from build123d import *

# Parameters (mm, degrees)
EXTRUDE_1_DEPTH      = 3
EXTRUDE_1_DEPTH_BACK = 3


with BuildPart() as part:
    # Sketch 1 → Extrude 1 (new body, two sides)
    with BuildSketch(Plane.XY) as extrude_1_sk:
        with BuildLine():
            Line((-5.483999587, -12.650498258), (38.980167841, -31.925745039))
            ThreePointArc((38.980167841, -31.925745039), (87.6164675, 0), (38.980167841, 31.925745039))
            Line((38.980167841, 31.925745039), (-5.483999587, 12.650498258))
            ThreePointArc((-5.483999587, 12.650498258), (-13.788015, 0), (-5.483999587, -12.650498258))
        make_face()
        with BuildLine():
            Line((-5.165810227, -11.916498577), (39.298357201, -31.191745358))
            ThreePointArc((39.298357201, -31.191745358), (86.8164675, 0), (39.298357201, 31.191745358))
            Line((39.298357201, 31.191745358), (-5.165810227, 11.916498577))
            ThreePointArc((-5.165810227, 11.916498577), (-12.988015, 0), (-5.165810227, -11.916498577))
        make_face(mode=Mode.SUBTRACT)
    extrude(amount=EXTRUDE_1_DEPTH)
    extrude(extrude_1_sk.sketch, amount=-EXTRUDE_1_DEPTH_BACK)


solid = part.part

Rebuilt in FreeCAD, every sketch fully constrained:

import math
import FreeCAD as App
import Part
import Sketcher

V = App.Vector
Q = App.Units.Quantity

doc = App.newDocument("Part")
body = doc.addObject("PartDesign::Body", "Body")

# Sketch on XY plane
sketch1 = body.newObject("Sketcher::SketchObject", "Sketch")
sketch1.AttachmentSupport = (doc.getObject("XY_Plane"), [""])
sketch1.MapMode = "FlatFace"
sketch1.addGeometry([
    Part.LineSegment(V(-5, -13, 0), V(39, -32, 0)),  # 0
    Part.ArcOfCircle(Part.Circle(V(53, 0, 0), V(0, 0, 1), 35), math.radians(-113), math.radians(113)),  # 1
    Part.LineSegment(V(39, 32, 0), V(-5, 13, 0)),  # 2
    Part.ArcOfCircle(Part.Circle(V(0, 0, 0), V(0, 0, 1), 14), math.radians(113), math.radians(247)),  # 3
    Part.LineSegment(V(39, -31, 0), V(-5, -12, 0)),  # 4
    Part.ArcOfCircle(Part.Circle(V(0, 0, 0), V(0, 0, 1), 13), math.radians(113), math.radians(247)),  # 5
    Part.LineSegment(V(-5, 12, 0), V(39, 31, 0)),  # 6
    Part.ArcOfCircle(Part.Circle(V(53, 0, 0), V(0, 0, 1), 34), math.radians(-113), math.radians(113)),  # 7
], False)
sketch1.addConstraint([
    Sketcher.Constraint("Tangent", 0, 2, 1, 1),
    Sketcher.Constraint("Tangent", 1, 2, 2, 1),
    Sketcher.Constraint("Tangent", 2, 2, 3, 1),
    Sketcher.Constraint("Tangent", 3, 2, 0, 1),
    Sketcher.Constraint("Tangent", 4, 2, 5, 2),
    Sketcher.Constraint("Tangent", 5, 1, 6, 1),
    Sketcher.Constraint("Tangent", 6, 2, 7, 2),
    Sketcher.Constraint("Tangent", 7, 1, 4, 1),
    Sketcher.Constraint("Coincident", 3, 3, -1, 1),
    Sketcher.Constraint("Coincident", 5, 3, -1, 1),
    Sketcher.Constraint("Coincident", 7, 3, 1, 3),
    Sketcher.Constraint("PointOnObject", 1, 3, -1),
    Sketcher.Constraint("Parallel", 0, 4),
    Sketcher.Constraint("DistanceX", -1, 1, 1, 3, Q("52.82 mm")),
    Sketcher.Constraint("DistanceX", 2, 2, -1, 1, Q("5.484 mm")),
    Sketcher.Constraint("Radius", 1, Q("34.796467 mm")),
    Sketcher.Constraint("Radius", 5, Q("12.988015 mm")),
])
pad1 = body.newObject("PartDesign::Pad", "Pad")
pad1.Profile = sketch1
pad1.Type = "TwoLengths"
pad1.Length = 3
pad1.Length2 = 3

doc.recompute()
